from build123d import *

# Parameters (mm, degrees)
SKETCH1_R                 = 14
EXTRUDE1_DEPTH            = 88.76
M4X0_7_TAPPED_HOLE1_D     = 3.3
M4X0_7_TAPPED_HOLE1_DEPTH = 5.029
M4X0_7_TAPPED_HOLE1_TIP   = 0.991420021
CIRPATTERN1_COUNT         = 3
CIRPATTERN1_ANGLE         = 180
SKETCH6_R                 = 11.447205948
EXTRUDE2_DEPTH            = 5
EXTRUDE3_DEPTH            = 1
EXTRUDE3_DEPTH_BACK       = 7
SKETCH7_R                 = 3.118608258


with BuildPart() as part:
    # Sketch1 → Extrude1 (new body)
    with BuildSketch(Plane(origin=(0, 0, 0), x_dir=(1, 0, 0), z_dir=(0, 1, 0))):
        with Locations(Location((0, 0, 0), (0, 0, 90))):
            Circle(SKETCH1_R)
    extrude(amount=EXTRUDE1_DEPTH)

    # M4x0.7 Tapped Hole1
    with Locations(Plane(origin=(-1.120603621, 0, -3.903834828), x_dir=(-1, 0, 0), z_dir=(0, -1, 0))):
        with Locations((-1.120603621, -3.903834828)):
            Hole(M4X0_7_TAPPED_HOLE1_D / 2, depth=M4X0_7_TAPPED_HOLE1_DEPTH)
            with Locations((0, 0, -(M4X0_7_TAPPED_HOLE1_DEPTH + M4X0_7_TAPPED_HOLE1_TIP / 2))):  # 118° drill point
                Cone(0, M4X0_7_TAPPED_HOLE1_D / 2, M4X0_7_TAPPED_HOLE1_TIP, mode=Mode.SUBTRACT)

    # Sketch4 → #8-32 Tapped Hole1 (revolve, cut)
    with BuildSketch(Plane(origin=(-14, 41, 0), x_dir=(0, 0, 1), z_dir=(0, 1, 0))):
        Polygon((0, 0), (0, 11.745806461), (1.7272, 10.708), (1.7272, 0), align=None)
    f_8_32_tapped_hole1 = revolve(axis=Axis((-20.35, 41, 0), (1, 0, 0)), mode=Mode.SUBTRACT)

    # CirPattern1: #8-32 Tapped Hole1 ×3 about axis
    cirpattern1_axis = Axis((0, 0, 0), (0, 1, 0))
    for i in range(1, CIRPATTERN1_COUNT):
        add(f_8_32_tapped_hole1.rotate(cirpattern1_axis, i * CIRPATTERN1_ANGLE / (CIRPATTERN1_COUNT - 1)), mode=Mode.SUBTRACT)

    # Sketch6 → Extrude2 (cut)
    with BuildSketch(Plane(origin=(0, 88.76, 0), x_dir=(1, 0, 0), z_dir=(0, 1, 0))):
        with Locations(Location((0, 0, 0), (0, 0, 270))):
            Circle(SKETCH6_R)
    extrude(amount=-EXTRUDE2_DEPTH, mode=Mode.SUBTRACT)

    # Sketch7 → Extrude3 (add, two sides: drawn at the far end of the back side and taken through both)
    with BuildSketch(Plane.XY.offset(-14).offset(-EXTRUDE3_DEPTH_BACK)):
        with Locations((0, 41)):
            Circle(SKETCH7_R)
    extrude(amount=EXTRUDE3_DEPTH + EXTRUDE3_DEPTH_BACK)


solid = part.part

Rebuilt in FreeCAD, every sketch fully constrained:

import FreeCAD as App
import Part
import Sketcher

V = App.Vector
Q = App.Units.Quantity


def add_polygon(sketch, points):
    """Adds a closed chain of lines whose ends are joined by coincident constraints."""
    first, n = sketch.GeometryCount, len(points)
    for a, b in zip(points, points[1:] + points[:1]):
        sketch.addGeometry(Part.LineSegment(App.Vector(*a, 0), App.Vector(*b, 0)), False)
    for i in range(n):
        sketch.addConstraint(Sketcher.Constraint("Coincident", first + i, 2, first + (i + 1) % n, 1))

doc = App.newDocument("Part")
params = doc.addObject("Spreadsheet::Sheet", "Params")
for row, (alias, value) in enumerate([
    ("sketch1_diameter", "28 mm"),
    ("pad1_length", "88.76 mm"),
    ("sketch2_diameter", "3.3 mm"),
    ("hole_diameter", "3.3 mm"),
    ("hole_depth", "5.029 mm"),
    ("groove_angle", "360 deg"),
    ("pocket1_length", "5 mm"),
    ("pad2_length", "1 mm"),
    ("pad2_length2", "7 mm"),
], start=1):
    params.set(f"A{row}", alias)
    params.set(f"B{row}", "=" + value)
    params.setAlias(f"B{row}", alias)

body = doc.addObject("PartDesign::Body", "Body")

# Sketch on XZ plane
sketch1 = body.newObject("Sketcher::SketchObject", "Sketch")
sketch1.AttachmentSupport = (doc.getObject("XZ_Plane"), [""])
sketch1.MapMode = "FlatFace"
sketch1.addGeometry(Part.Circle(V(0, 0, 0), V(0, 0, 1), 14), False)
sketch1.addConstraint(Sketcher.Constraint("Coincident", 0, 3, -1, 1))
sketch1.addConstraint(Sketcher.Constraint("Diameter", 0, 28.0))
sketch1.setExpression("Constraints[1]", "Params.sketch1_diameter")
pad1 = body.newObject("PartDesign::Pad", "Pad")
pad1.Profile = sketch1
pad1.setExpression("Length", "Params.pad1_length")
pad1.Reversed = True

# Sketch on XZ plane
sketch2 = body.newObject("Sketcher::SketchObject", "Sketch001")
sketch2.AttachmentSupport = (doc.getObject("XZ_Plane"), [""])
sketch2.MapMode = "FlatFace"
sketch2.addGeometry(Part.Circle(V(0, 0, 0), V(0, 0, 1), 1.65), False)
sketch2.addConstraint(Sketcher.Constraint("Coincident", 0, 3, -1, 1))
sketch2.addConstraint(Sketcher.Constraint("Diameter", 0, 3.3))
sketch2.setExpression("Constraints[1]", "Params.sketch2_diameter")
doc.recompute()
hole = body.newObject("PartDesign::Hole", "Hole")
hole.Profile = sketch2
hole.ThreadType = "None"
hole.setExpression("Diameter", "Params.hole_diameter")
hole.DepthType = "Dimension"
hole.setExpression("Depth", "Params.hole_depth")
hole.DrillPoint = "Angled"
hole.DrillPointAngle = 118

# Sketch on XZ plane
sketch3 = body.newObject("Sketcher::SketchObject", "Sketch002")
sketch3.AttachmentSupport = (doc.getObject("XZ_Plane"), [""])
sketch3.MapMode = "FlatFace"
sketch3.AttachmentOffset = App.Placement(V(0, 0, -41), App.Rotation())
add_polygon(sketch3, [(-2.254194, 0), (-14, 0), (-14, 1.7272), (-3.292, 1.7272)])  # lines 0-3
sketch3.addConstraint(Sketcher.Constraint("Horizontal", 0))
sketch3.addConstraint(Sketcher.Constraint("Vertical", 1))
sketch3.addConstraint(Sketcher.Constraint("Horizontal", 2))
sketch3.addConstraint(Sketcher.Constraint("PointOnObject", 0, 2, -1))
sketch3.addConstraint(Sketcher.Constraint("Angle", 3, Q("-59 deg")))
sketch3.addConstraint(Sketcher.Constraint("DistanceX", 0, 2, -1, 1, 14.0))
sketch3.addConstraint(Sketcher.Constraint("DistanceX", 2, 1, 2, 2, 10.708))
sketch3.addConstraint(Sketcher.Constraint("DistanceY", 1, 1, 1, 2, 1.7272))
groove = body.newObject("PartDesign::Groove", "Groove")
groove.Profile = sketch3
groove.ReferenceAxis = (sketch3, ["H_Axis"])
groove.setExpression("Angle", "Params.groove_angle")
doc.recompute()

polarpattern = body.newObject("PartDesign::PolarPattern", "PolarPattern")
polarpattern.Originals = [groove]
polarpattern.Axis = (doc.getObject("Y_Axis"), [""])
polarpattern.Angle = 180
polarpattern.Occurrences = 3
body.Tip = polarpattern

# Sketch on XZ plane
sketch4 = body.newObject("Sketcher::SketchObject", "Sketch003")
sketch4.AttachmentSupport = (doc.getObject("XZ_Plane"), [""])
sketch4.MapMode = "FlatFace"
sketch4.AttachmentOffset = App.Placement(V(0, 0, -88.76), App.Rotation())
sketch4.addGeometry(Part.Circle(V(0, 0, 0), V(0, 0, 1), 11.447206), False)
sketch4.addConstraint(Sketcher.Constraint("Coincident", 0, 3, -1, 1))
sketch4.addConstraint(Sketcher.Constraint("Diameter", 0, 22.894412))
pocket1 = body.newObject("PartDesign::Pocket", "Pocket")
pocket1.Profile = sketch4
pocket1.setExpression("Length", "Params.pocket1_length")
pocket1.Reversed = True

# Sketch on XY plane
sketch5 = body.newObject("Sketcher::SketchObject", "Sketch004")
sketch5.AttachmentSupport = (doc.getObject("XY_Plane"), [""])
sketch5.MapMode = "FlatFace"
sketch5.AttachmentOffset = App.Placement(V(0, 0, -14), App.Rotation())
sketch5.addGeometry(Part.Circle(V(0, 41, 0), V(0, 0, 1), 3.118608), False)
sketch5.addConstraint(Sketcher.Constraint("PointOnObject", 0, 3, -2))
sketch5.addConstraint(Sketcher.Constraint("DistanceY", -1, 1, 0, 3, 41.0))
sketch5.addConstraint(Sketcher.Constraint("Diameter", 0, 6.237217))
pad2 = body.newObject("PartDesign::Pad", "Pad001")
pad2.Profile = sketch5
pad2.Type = "TwoLengths"
pad2.setExpression("Length", "Params.pad2_length")
pad2.setExpression("Length2", "Params.pad2_length2")

doc.recompute()
